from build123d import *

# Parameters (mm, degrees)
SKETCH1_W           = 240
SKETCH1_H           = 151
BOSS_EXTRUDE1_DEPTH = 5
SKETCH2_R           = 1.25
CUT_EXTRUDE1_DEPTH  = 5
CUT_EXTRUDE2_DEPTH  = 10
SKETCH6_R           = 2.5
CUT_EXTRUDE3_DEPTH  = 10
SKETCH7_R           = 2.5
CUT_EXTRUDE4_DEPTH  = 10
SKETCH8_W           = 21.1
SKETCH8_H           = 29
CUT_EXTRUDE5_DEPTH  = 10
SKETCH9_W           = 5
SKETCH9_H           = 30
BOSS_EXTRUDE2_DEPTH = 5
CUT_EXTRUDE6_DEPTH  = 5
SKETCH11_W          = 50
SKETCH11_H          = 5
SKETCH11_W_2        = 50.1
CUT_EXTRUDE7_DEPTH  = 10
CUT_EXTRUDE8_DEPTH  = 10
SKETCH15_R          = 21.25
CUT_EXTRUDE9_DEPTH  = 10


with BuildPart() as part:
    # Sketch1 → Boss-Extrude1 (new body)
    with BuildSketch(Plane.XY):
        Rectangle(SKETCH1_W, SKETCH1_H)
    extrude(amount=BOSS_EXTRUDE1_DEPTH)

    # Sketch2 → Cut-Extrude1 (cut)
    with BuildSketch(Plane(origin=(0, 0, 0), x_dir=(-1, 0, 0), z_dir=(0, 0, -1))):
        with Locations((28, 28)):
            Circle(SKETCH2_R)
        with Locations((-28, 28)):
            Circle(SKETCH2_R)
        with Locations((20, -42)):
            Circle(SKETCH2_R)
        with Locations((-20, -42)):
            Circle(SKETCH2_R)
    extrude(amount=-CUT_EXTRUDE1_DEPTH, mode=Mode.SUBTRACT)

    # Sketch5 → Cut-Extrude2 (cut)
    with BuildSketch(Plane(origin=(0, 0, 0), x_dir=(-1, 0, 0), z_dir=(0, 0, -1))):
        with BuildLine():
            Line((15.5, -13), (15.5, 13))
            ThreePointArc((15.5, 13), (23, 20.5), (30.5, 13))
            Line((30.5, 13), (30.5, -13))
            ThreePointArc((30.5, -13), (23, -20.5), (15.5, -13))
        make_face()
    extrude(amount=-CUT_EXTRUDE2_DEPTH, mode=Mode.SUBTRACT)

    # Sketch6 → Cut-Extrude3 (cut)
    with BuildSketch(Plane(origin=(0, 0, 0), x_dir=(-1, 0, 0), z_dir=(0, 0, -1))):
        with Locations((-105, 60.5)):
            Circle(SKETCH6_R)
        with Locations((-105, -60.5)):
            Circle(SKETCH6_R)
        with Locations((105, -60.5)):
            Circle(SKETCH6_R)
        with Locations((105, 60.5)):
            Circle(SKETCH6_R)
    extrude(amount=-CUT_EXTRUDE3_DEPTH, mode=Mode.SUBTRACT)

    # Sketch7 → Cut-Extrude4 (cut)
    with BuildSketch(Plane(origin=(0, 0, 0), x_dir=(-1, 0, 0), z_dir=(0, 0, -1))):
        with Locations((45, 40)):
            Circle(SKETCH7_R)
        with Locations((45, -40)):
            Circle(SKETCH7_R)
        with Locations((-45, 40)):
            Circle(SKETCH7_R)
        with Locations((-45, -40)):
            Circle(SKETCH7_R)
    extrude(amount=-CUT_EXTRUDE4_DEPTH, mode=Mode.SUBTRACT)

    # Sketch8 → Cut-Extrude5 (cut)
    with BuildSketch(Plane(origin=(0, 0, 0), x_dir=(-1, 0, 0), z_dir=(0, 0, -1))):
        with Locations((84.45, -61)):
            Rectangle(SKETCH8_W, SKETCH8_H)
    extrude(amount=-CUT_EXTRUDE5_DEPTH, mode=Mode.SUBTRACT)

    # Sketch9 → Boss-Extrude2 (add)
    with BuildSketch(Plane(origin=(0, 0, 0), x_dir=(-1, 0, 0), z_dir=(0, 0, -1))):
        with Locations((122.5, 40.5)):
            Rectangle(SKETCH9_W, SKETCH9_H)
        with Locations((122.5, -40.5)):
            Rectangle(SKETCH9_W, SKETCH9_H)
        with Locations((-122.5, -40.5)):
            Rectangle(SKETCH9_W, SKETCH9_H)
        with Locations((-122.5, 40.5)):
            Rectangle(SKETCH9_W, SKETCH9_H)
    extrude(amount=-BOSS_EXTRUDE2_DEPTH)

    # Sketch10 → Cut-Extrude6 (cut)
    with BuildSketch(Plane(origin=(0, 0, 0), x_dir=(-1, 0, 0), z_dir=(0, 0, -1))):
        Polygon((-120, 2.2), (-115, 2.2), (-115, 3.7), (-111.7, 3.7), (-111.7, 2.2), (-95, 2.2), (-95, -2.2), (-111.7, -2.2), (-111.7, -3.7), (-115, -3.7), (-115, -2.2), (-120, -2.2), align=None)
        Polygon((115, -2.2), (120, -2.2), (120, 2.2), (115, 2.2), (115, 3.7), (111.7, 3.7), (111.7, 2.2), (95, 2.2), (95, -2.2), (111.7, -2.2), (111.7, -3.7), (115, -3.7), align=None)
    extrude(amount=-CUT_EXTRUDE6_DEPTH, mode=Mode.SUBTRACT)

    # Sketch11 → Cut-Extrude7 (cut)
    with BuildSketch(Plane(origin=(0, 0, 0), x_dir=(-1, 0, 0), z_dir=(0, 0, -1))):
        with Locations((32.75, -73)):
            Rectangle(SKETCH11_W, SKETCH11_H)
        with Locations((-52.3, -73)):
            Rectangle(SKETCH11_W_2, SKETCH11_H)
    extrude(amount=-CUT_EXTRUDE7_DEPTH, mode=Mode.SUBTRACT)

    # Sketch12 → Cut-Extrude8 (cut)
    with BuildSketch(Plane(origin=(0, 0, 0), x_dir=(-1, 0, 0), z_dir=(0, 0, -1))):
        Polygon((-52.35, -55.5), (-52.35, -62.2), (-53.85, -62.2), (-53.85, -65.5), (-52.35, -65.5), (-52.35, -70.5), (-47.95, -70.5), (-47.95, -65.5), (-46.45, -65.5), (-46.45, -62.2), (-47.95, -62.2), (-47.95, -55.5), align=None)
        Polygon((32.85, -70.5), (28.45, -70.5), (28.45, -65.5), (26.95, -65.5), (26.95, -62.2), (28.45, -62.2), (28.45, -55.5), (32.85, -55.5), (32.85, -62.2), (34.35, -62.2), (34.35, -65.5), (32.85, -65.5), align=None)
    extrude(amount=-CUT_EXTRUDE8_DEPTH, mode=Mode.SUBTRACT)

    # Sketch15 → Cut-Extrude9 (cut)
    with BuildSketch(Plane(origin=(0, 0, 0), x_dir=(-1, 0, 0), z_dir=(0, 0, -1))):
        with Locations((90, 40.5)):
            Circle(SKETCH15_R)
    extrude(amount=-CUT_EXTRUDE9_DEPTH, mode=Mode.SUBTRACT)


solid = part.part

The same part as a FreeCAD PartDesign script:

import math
import FreeCAD as App
import Part
import Sketcher
from FreeCAD import Vector
Q = App.Units.Quantity


def add_polygon(sketch, points):
    """Adds a closed chain of lines whose ends are joined by coincident constraints."""
    first, n = sketch.GeometryCount, len(points)
    for a, b in zip(points, points[1:] + points[:1]):
        sketch.addGeometry(Part.LineSegment(App.Vector(*a, 0), App.Vector(*b, 0)), False)
    for i in range(n):
        sketch.addConstraint(Sketcher.Constraint("Coincident", first + i, 2, first + (i + 1) % n, 1))

doc = App.newDocument("Part")
body = doc.addObject("PartDesign::Body", "Body")

# Sketch on XY plane
sketch1 = body.newObject("Sketcher::SketchObject", "Sketch")
sketch1.AttachmentSupport = (doc.getObject("XY_Plane"), [""])
sketch1.MapMode = "FlatFace"
add_polygon(sketch1, [(-120, 76), (-120, -76), (120, -76), (120, 76)])  # lines 0-3
sketch1.addConstraint([
    Sketcher.Constraint("Vertical", 0),
    Sketcher.Constraint("Horizontal", 1),
    Sketcher.Constraint("Vertical", 2),
    Sketcher.Constraint("Horizontal", 3),
    Sketcher.Constraint("Symmetric", 0, 2, 2, 2, -1, 1),
    Sketcher.Constraint("DistanceX", 1, 1, 1, 2, Q("240 mm")),
    Sketcher.Constraint("DistanceY", 0, 2, 0, 1, Q("151 mm")),
])
pad1 = body.newObject("PartDesign::Pad", "Pad")
pad1.Profile = sketch1
pad1.Length = 5

# Sketch on XY plane
sketch2 = body.newObject("Sketcher::SketchObject", "Sketch001")
sketch2.AttachmentSupport = (doc.getObject("XY_Plane"), [""])
sketch2.MapMode = "FlatFace"
sketch2.addGeometry([
    Part.Circle(Vector(-28, 28, 0), Vector(0, 0, 1), 1.2),
    Part.Circle(Vector(28, 28, 0), Vector(0, 0, 1), 1.2),
    Part.Circle(Vector(-20, -42, 0), Vector(0, 0, 1), 1.2),
    Part.Circle(Vector(20, -42, 0), Vector(0, 0, 1), 1.2),
], False)
sketch2.addConstraint([
    Sketcher.Constraint("Equal", 0, 1),
    Sketcher.Constraint("Equal", 1, 2),
    Sketcher.Constraint("Equal", 2, 3),
    Sketcher.Constraint("Symmetric", 0, 3, 1, 3, -2),
    Sketcher.Constraint("Symmetric", 2, 3, 3, 3, -2),
    Sketcher.Constraint("Diameter", 0, Q("2.5 mm")),
    Sketcher.Constraint("DistanceX", 0, 3, -1, 1, Q("28 mm")),
    Sketcher.Constraint("DistanceY", -1, 1, 0, 3, Q("28 mm")),
    Sketcher.Constraint("DistanceX", 2, 3, -1, 1, Q("20 mm")),
    Sketcher.Constraint("DistanceY", 2, 3, -1, 1, Q("42 mm")),
])
pocket1 = body.newObject("PartDesign::Pocket", "Pocket")
pocket1.Profile = sketch2
pocket1.Length = 5
pocket1.Reversed = True

# Sketch on XY plane
sketch3 = body.newObject("Sketcher::SketchObject", "Sketch002")
sketch3.AttachmentSupport = (doc.getObject("XY_Plane"), [""])
sketch3.MapMode = "FlatFace"
sketch3.addGeometry([
    Part.LineSegment(Vector(-16, 13, 0), Vector(-16, -13, 0)),
    Part.ArcOfCircle(Part.Circle(Vector(-23, -13, 0), Vector(0, 0, 1), 8), math.radians(180), math.radians(360)),
    Part.LineSegment(Vector(-30, -13, 0), Vector(-30, 13, 0)),
    Part.ArcOfCircle(Part.Circle(Vector(-23, 13, 0), Vector(0, 0, 1), 8), math.radians(0), math.radians(180)),
], False)
sketch3.addConstraint([
    Sketcher.Constraint("Tangent", 0, 2, 1, 2),
    Sketcher.Constraint("Tangent", 1, 1, 2, 1),
    Sketcher.Constraint("Tangent", 2, 2, 3, 2),
    Sketcher.Constraint("Tangent", 3, 1, 0, 1),
    Sketcher.Constraint("Vertical", 0),
    Sketcher.Constraint("Vertical", 2),
    Sketcher.Constraint("Radius", 1, Q("7.5 mm")),
    Sketcher.Constraint("DistanceY", 0, 2, 0, 1, Q("26 mm")),
    Sketcher.Constraint("DistanceX", 1, 3, -1, 1, Q("23 mm")),
    Sketcher.Constraint("DistanceY", 1, 3, -1, 1, Q("13 mm")),
])
pocket2 = body.newObject("PartDesign::Pocket", "Pocket001")
pocket2.Profile = sketch3
pocket2.Length = 10
pocket2.Reversed = True

# Sketch on XY plane
sketch4 = body.newObject("Sketcher::SketchObject", "Sketch003")
sketch4.AttachmentSupport = (doc.getObject("XY_Plane"), [""])
sketch4.MapMode = "FlatFace"
sketch4.addGeometry([
    Part.Circle(Vector(105, 60.5, 0), Vector(0, 0, 1), 2.5),
    Part.Circle(Vector(105, -60.5, 0), Vector(0, 0, 1), 2.5),
    Part.Circle(Vector(-105, -60.5, 0), Vector(0, 0, 1), 2.5),
    Part.Circle(Vector(-105, 60.5, 0), Vector(0, 0, 1), 2.5),
], False)
sketch4.addConstraint([
    Sketcher.Constraint("Equal", 0, 1),
    Sketcher.Constraint("Equal", 1, 2),
    Sketcher.Constraint("Equal", 2, 3),
    Sketcher.Constraint("Symmetric", 0, 3, 2, 3, -1, 1),
    Sketcher.Constraint("Symmetric", 1, 3, 3, 3, -1, 1),
    Sketcher.Constraint("Symmetric", 1, 3, 2, 3, -2),
    Sketcher.Constraint("Diameter", 0, Q("5 mm")),
    Sketcher.Constraint("DistanceX", -1, 1, 0, 3, Q("105 mm")),
    Sketcher.Constraint("DistanceY", 1, 3, 0, 3, Q("121 mm")),
])
pocket3 = body.newObject("PartDesign::Pocket", "Pocket002")
pocket3.Profile = sketch4
pocket3.Length = 10
pocket3.Reversed = True

# Sketch on XY plane
sketch5 = body.newObject("Sketcher::SketchObject", "Sketch004")
sketch5.AttachmentSupport = (doc.getObject("XY_Plane"), [""])
sketch5.MapMode = "FlatFace"
sketch5.addGeometry([
    Part.Circle(Vector(-45, 40, 0), Vector(0, 0, 1), 2.5),
    Part.Circle(Vector(-45, -40, 0), Vector(0, 0, 1), 2.5),
    Part.Circle(Vector(45, 40, 0), Vector(0, 0, 1), 2.5),
    Part.Circle(Vector(45, -40, 0), Vector(0, 0, 1), 2.5),
], False)
sketch5.addConstraint([
    Sketcher.Constraint("Equal", 0, 1),
    Sketcher.Constraint("Equal", 1, 2),
    Sketcher.Constraint("Equal", 2, 3),
    Sketcher.Constraint("Symmetric", 1, 3, 2, 3, -1, 1),
    Sketcher.Constraint("Symmetric", 0, 3, 3, 3, -1, 1),
    Sketcher.Constraint("Symmetric", 0, 3, 2, 3, -2),
    Sketcher.Constraint("Diameter", 0, Q("5 mm")),
    Sketcher.Constraint("DistanceX", 0, 3, -1, 1, Q("45 mm")),
    Sketcher.Constraint("DistanceY", -1, 1, 0, 3, Q("40 mm")),
])
pocket4 = body.newObject("PartDesign::Pocket", "Pocket003")
pocket4.Profile = sketch5
pocket4.Length = 10
pocket4.Reversed = True

# Sketch on XY plane
sketch6 = body.newObject("Sketcher::SketchObject", "Sketch005")
sketch6.AttachmentSupport = (doc.getObject("XY_Plane"), [""])
sketch6.MapMode = "FlatFace"
add_polygon(sketch6, [(-74, -46), (-74, -76), (-95, -76), (-95, -46)])  # lines 0-3
sketch6.addConstraint([
    Sketcher.Constraint("Vertical", 0),
    Sketcher.Constraint("Horizontal", 1),
    Sketcher.Constraint("Vertical", 2),
    Sketcher.Constraint("Horizontal", 3),
    Sketcher.Constraint("DistanceY", 0, 2, 0, 1, Q("29 mm")),
    Sketcher.Constraint("DistanceX", 1, 2, 1, 1, Q("21.1 mm")),
    Sketcher.Constraint("DistanceX", 1, 2, -1, 1, Q("95 mm")),
    Sketcher.Constraint("DistanceY", 0, 2, -1, 1, Q("75.5 mm")),
])
pocket5 = body.newObject("PartDesign::Pocket", "Pocket004")
pocket5.Profile = sketch6
pocket5.Length = 10
pocket5.Reversed = True

# Sketch on XY plane
sketch7 = body.newObject("Sketcher::SketchObject", "Sketch006")
sketch7.AttachmentSupport = (doc.getObject("XY_Plane"), [""])
sketch7.MapMode = "FlatFace"
add_polygon(sketch7, [(-120, 56), (-120, 26), (-125, 26), (-125, 56)])  # lines 0-3
add_polygon(sketch7, [(-120, -26), (-120, -56), (-125, -56), (-125, -26)])  # lines 4-7
add_polygon(sketch7, [(125, -26), (125, -56), (120, -56), (120, -26)])  # lines 8-11
add_polygon(sketch7, [(125, 56), (125, 26), (120, 26), (120, 56)])  # lines 12-15
sketch7.addConstraint([
    Sketcher.Constraint("Vertical", 0),
    Sketcher.Constraint("Horizontal", 1),
    Sketcher.Constraint("Vertical", 2),
    Sketcher.Constraint("Horizontal", 3),
    Sketcher.Constraint("Vertical", 4),
    Sketcher.Constraint("Horizontal", 5),
    Sketcher.Constraint("Vertical", 6),
    Sketcher.Constraint("Horizontal", 7),
    Sketcher.Constraint("Vertical", 8),
    Sketcher.Constraint("Horizontal", 9),
    Sketcher.Constraint("Vertical", 10),
    Sketcher.Constraint("Horizontal", 11),
    Sketcher.Constraint("Vertical", 12),
    Sketcher.Constraint("Horizontal", 13),
    Sketcher.Constraint("Vertical", 14),
    Sketcher.Constraint("Horizontal", 15),
    Sketcher.Constraint("Symmetric", 2, 2, 8, 2, -1, 1),
    Sketcher.Constraint("Symmetric", 0, 2, 10, 2, -1, 1),
    Sketcher.Constraint("Symmetric", 6, 2, 12, 2, -1, 1),
    Sketcher.Constraint("Symmetric", 4, 2, 14, 2, -1, 1),
    Sketcher.Constraint("Symmetric", 5, 2, 8, 2, -2),
    Sketcher.Constraint("Symmetric", 7, 2, 10, 2, -2),
    Sketcher.Constraint("DistanceX", 1, 2, 1, 1, Q("5 mm")),
    Sketcher.Constraint("DistanceY", 0, 2, 0, 1, Q("30 mm")),
    Sketcher.Constraint("DistanceX", 0, 2, -1, 1, Q("120 mm")),
    Sketcher.Constraint("DistanceY", 4, 2, 0, 2, Q("81 mm")),
])
pad2 = body.newObject("PartDesign::Pad", "Pad001")
pad2.Profile = sketch7
pad2.Length = 5

# Sketch on XY plane
sketch8 = body.newObject("Sketcher::SketchObject", "Sketch007")
sketch8.AttachmentSupport = (doc.getObject("XY_Plane"), [""])
sketch8.MapMode = "FlatFace"
add_polygon(sketch8, [(115, 2.2), (120, 2.2), (120, -2.2), (115, -2.2), (115, -3.7), (111.7, -3.7), (111.7, -2.2), (95, -2.2), (95, 2.2), (111.7, 2.2), (111.7, 3.7), (115, 3.7)])  # lines 0-11
add_polygon(sketch8, [(-115, -2.2), (-120, -2.2), (-120, 2.2), (-115, 2.2), (-115, 3.7), (-111.7, 3.7), (-111.7, 2.2), (-95, 2.2), (-95, -2.2), (-111.7, -2.2), (-111.7, -3.7), (-115, -3.7)])  # lines 12-23
sketch8.addConstraint([
    Sketcher.Constraint("Horizontal", 0),
    Sketcher.Constraint("Vertical", 1),
    Sketcher.Constraint("Horizontal", 2),
    Sketcher.Constraint("Vertical", 3),
    Sketcher.Constraint("Horizontal", 4),
    Sketcher.Constraint("Vertical", 5),
    Sketcher.Constraint("Horizontal", 6),
    Sketcher.Constraint("Vertical", 7),
    Sketcher.Constraint("Horizontal", 8),
    Sketcher.Constraint("Vertical", 9),
    Sketcher.Constraint("Horizontal", 10),
    Sketcher.Constraint("Vertical", 11),
    Sketcher.Constraint("Horizontal", 12),
    Sketcher.Constraint("Vertical", 13),
    Sketcher.Constraint("Horizontal", 14),
    Sketcher.Constraint("Vertical", 15),
    Sketcher.Constraint("Horizontal", 16),
    Sketcher.Constraint("Vertical", 17),
    Sketcher.Constraint("Horizontal", 18),
    Sketcher.Constraint("Vertical", 19),
    Sketcher.Constraint("Horizontal", 20),
    Sketcher.Constraint("Vertical", 21),
    Sketcher.Constraint("Horizontal", 22),
    Sketcher.Constraint("Vertical", 23),
    Sketcher.Constraint("Symmetric", 0, 2, 12, 2, -1, 1),
    Sketcher.Constraint("Symmetric", 2, 2, 14, 2, -1, 1),
    Sketcher.Constraint("Symmetric", 4, 2, 16, 2, -1, 1),
    Sketcher.Constraint("Symmetric", 6, 2, 18, 2, -1, 1),
    Sketcher.Constraint("Symmetric", 8, 2, 20, 2, -1, 1),
    Sketcher.Constraint("Symmetric", 10, 2, 22, 2, -1, 1),
    Sketcher.Constraint("Symmetric", 11, 2, 14, 2, -2),
    Sketcher.Constraint("Symmetric", 9, 2, 16, 2, -2),
    Sketcher.Constraint("Horizontal", 2, 2, 5, 2),
    Sketcher.Constraint("Horizontal", 0, 2, 7, 2),
    Sketcher.Constraint("DistanceX", 0, 1, 0, 2, Q("5 mm")),
    Sketcher.Constraint("DistanceX", 4, 2, 4, 1, Q("3.3 mm")),
    Sketcher.Constraint("DistanceX", 6, 2, 6, 1, Q("16.7 mm")),
    Sketcher.Constraint("DistanceY", 1, 2, 1, 1, Q("4.4 mm")),
    Sketcher.Constraint("DistanceY", 3, 2, 3, 1, Q("1.5 mm")),
    Sketcher.Constraint("DistanceX", -1, 1, 0, 2, Q("120 mm")),
])
pocket6 = body.newObject("PartDesign::Pocket", "Pocket005")
pocket6.Profile = sketch8
pocket6.Length = 5
pocket6.Reversed = True

# Sketch on XY plane
sketch9 = body.newObject("Sketcher::SketchObject", "Sketch008")
sketch9.AttachmentSupport = (doc.getObject("XY_Plane"), [""])
sketch9.MapMode = "FlatFace"
add_polygon(sketch9, [(-8, -70), (-8, -76), (-58, -76), (-58, -70)])  # lines 0-3
add_polygon(sketch9, [(77, -70), (77, -76), (27, -76), (27, -70)])  # lines 4-7
sketch9.addConstraint([
    Sketcher.Constraint("Vertical", 0),
    Sketcher.Constraint("Horizontal", 1),
    Sketcher.Constraint("Vertical", 2),
    Sketcher.Constraint("Horizontal", 3),
    Sketcher.Constraint("Vertical", 4),
    Sketcher.Constraint("Horizontal", 5),
    Sketcher.Constraint("Vertical", 6),
    Sketcher.Constraint("Horizontal", 7),
    Sketcher.Constraint("Horizontal", 1, 2, 4, 2),
    Sketcher.Constraint("Horizontal", 3, 2, 6, 2),
    Sketcher.Constraint("DistanceX", 1, 2, 1, 1, Q("50 mm")),
    Sketcher.Constraint("DistanceY", 0, 2, 0, 1, Q("5 mm")),
    Sketcher.Constraint("DistanceX", 5, 2, 5, 1, Q("50.1 mm")),
    Sketcher.Constraint("DistanceX", 0, 2, 5, 2, Q("35 mm")),
    Sketcher.Constraint("DistanceY", 0, 2, -1, 1, Q("75.5 mm")),
    Sketcher.Constraint("DistanceX", 0, 2, -1, 1, Q("7.75 mm")),
])
pocket7 = body.newObject("PartDesign::Pocket", "Pocket006")
pocket7.Profile = sketch9
pocket7.Length = 10
pocket7.Reversed = True

# Sketch on XY plane
sketch10 = body.newObject("Sketcher::SketchObject", "Sketch009")
sketch10.AttachmentSupport = (doc.getObject("XY_Plane"), [""])
sketch10.MapMode = "FlatFace"
add_polygon(sketch10, [(52.4, -55.5), (52.4, -62.2), (53.9, -62.2), (53.9, -65.5), (52.4, -65.5), (52.4, -70.5), (48, -70.5), (48, -65.5), (46.5, -65.5), (46.5, -62.2), (48, -62.2), (48, -55.5)])  # lines 0-11
add_polygon(sketch10, [(-28.4, -70.5), (-32.9, -70.5), (-32.9, -65.5), (-34.4, -65.5), (-34.4, -62.2), (-32.9, -62.2), (-32.9, -55.5), (-28.4, -55.5), (-28.4, -62.2), (-26.9, -62.2), (-26.9, -65.5), (-28.4, -65.5)])  # lines 12-23
sketch10.addConstraint([
    Sketcher.Constraint("Vertical", 0),
    Sketcher.Constraint("Horizontal", 1),
    Sketcher.Constraint("Vertical", 2),
    Sketcher.Constraint("Horizontal", 3),
    Sketcher.Constraint("Vertical", 4),
    Sketcher.Constraint("Horizontal", 5),
    Sketcher.Constraint("Vertical", 6),
    Sketcher.Constraint("Horizontal", 7),
    Sketcher.Constraint("Vertical", 8),
    Sketcher.Constraint("Horizontal", 9),
    Sketcher.Constraint("Vertical", 10),
    Sketcher.Constraint("Horizontal", 11),
    Sketcher.Constraint("Horizontal", 12),
    Sketcher.Constraint("Vertical", 13),
    Sketcher.Constraint("Horizontal", 14),
    Sketcher.Constraint("Vertical", 15),
    Sketcher.Constraint("Horizontal", 16),
    Sketcher.Constraint("Vertical", 17),
    Sketcher.Constraint("Horizontal", 18),
    Sketcher.Constraint("Vertical", 19),
    Sketcher.Constraint("Horizontal", 20),
    Sketcher.Constraint("Vertical", 21),
    Sketcher.Constraint("Horizontal", 22),
    Sketcher.Constraint("Vertical", 23),
    Sketcher.Constraint("Horizontal", 3, 2, 6, 2),
    Sketcher.Constraint("Horizontal", 1, 2, 8, 2),
    Sketcher.Constraint("Horizontal", 5, 2, 12, 2),
    Sketcher.Constraint("Horizontal", 7, 2, 13, 2),
    Sketcher.Constraint("Horizontal", 9, 2, 15, 2),
    Sketcher.Constraint("Horizontal", 11, 2, 17, 2),
    Sketcher.Constraint("Horizontal", 16, 2, 19, 2),
    Sketcher.Constraint("Horizontal", 14, 2, 21, 2),
    Sketcher.Constraint("Vertical", 0, 2, 3, 2),
    Sketcher.Constraint("Vertical", 6, 2, 9, 2),
    Sketcher.Constraint("Vertical", 13, 2, 16, 2),
    Sketcher.Constraint("Vertical", 19, 2, 22, 2),
    Sketcher.Constraint("Equal", 3, 7),
    Sketcher.Constraint("Equal", 11, 12),
    Sketcher.Constraint("Equal", 9, 14),
    Sketcher.Constraint("Equal", 16, 20),
    Sketcher.Constraint("DistanceY", 4, 2, 4, 1, Q("5 mm")),
    Sketcher.Constraint("DistanceX", 1, 1, 1, 2, Q("1.5 mm")),
    Sketcher.Constraint("DistanceX", 5, 2, 5, 1, Q("4.4 mm")),
    Sketcher.Constraint("DistanceY", 0, 2, 0, 1, Q("6.7 mm")),
    Sketcher.Constraint("DistanceY", 2, 2, 2, 1, Q("3.3 mm")),
    Sketcher.Constraint("DistanceY", 0, 2, -1, 1, Q("62.2 mm")),
    Sketcher.Constraint("DistanceX", 12, 2, 7, 2, Q("79.3 mm")),
    Sketcher.Constraint("DistanceX", -1, 1, 0, 2, Q("52.35 mm")),
])
pocket8 = body.newObject("PartDesign::Pocket", "Pocket007")
pocket8.Profile = sketch10
pocket8.Length = 10
pocket8.Reversed = True

# Sketch on XY plane
sketch11 = body.newObject("Sketcher::SketchObject", "Sketch010")
sketch11.AttachmentSupport = (doc.getObject("XY_Plane"), [""])
sketch11.MapMode = "FlatFace"
sketch11.addGeometry(Part.Circle(Vector(-90, 40, 0), Vector(0, 0, 1), 21), False)
sketch11.addConstraint([
    Sketcher.Constraint("Diameter", 0, Q("42.5 mm")),
    Sketcher.Constraint("DistanceX", 0, 3, -1, 1, Q("90 mm")),
    Sketcher.Constraint("DistanceY", -1, 1, 0, 3, Q("40.5 mm")),
])
pocket9 = body.newObject("PartDesign::Pocket", "Pocket008")
pocket9.Profile = sketch11
pocket9.Length = 10
pocket9.Reversed = True

doc.recompute()
